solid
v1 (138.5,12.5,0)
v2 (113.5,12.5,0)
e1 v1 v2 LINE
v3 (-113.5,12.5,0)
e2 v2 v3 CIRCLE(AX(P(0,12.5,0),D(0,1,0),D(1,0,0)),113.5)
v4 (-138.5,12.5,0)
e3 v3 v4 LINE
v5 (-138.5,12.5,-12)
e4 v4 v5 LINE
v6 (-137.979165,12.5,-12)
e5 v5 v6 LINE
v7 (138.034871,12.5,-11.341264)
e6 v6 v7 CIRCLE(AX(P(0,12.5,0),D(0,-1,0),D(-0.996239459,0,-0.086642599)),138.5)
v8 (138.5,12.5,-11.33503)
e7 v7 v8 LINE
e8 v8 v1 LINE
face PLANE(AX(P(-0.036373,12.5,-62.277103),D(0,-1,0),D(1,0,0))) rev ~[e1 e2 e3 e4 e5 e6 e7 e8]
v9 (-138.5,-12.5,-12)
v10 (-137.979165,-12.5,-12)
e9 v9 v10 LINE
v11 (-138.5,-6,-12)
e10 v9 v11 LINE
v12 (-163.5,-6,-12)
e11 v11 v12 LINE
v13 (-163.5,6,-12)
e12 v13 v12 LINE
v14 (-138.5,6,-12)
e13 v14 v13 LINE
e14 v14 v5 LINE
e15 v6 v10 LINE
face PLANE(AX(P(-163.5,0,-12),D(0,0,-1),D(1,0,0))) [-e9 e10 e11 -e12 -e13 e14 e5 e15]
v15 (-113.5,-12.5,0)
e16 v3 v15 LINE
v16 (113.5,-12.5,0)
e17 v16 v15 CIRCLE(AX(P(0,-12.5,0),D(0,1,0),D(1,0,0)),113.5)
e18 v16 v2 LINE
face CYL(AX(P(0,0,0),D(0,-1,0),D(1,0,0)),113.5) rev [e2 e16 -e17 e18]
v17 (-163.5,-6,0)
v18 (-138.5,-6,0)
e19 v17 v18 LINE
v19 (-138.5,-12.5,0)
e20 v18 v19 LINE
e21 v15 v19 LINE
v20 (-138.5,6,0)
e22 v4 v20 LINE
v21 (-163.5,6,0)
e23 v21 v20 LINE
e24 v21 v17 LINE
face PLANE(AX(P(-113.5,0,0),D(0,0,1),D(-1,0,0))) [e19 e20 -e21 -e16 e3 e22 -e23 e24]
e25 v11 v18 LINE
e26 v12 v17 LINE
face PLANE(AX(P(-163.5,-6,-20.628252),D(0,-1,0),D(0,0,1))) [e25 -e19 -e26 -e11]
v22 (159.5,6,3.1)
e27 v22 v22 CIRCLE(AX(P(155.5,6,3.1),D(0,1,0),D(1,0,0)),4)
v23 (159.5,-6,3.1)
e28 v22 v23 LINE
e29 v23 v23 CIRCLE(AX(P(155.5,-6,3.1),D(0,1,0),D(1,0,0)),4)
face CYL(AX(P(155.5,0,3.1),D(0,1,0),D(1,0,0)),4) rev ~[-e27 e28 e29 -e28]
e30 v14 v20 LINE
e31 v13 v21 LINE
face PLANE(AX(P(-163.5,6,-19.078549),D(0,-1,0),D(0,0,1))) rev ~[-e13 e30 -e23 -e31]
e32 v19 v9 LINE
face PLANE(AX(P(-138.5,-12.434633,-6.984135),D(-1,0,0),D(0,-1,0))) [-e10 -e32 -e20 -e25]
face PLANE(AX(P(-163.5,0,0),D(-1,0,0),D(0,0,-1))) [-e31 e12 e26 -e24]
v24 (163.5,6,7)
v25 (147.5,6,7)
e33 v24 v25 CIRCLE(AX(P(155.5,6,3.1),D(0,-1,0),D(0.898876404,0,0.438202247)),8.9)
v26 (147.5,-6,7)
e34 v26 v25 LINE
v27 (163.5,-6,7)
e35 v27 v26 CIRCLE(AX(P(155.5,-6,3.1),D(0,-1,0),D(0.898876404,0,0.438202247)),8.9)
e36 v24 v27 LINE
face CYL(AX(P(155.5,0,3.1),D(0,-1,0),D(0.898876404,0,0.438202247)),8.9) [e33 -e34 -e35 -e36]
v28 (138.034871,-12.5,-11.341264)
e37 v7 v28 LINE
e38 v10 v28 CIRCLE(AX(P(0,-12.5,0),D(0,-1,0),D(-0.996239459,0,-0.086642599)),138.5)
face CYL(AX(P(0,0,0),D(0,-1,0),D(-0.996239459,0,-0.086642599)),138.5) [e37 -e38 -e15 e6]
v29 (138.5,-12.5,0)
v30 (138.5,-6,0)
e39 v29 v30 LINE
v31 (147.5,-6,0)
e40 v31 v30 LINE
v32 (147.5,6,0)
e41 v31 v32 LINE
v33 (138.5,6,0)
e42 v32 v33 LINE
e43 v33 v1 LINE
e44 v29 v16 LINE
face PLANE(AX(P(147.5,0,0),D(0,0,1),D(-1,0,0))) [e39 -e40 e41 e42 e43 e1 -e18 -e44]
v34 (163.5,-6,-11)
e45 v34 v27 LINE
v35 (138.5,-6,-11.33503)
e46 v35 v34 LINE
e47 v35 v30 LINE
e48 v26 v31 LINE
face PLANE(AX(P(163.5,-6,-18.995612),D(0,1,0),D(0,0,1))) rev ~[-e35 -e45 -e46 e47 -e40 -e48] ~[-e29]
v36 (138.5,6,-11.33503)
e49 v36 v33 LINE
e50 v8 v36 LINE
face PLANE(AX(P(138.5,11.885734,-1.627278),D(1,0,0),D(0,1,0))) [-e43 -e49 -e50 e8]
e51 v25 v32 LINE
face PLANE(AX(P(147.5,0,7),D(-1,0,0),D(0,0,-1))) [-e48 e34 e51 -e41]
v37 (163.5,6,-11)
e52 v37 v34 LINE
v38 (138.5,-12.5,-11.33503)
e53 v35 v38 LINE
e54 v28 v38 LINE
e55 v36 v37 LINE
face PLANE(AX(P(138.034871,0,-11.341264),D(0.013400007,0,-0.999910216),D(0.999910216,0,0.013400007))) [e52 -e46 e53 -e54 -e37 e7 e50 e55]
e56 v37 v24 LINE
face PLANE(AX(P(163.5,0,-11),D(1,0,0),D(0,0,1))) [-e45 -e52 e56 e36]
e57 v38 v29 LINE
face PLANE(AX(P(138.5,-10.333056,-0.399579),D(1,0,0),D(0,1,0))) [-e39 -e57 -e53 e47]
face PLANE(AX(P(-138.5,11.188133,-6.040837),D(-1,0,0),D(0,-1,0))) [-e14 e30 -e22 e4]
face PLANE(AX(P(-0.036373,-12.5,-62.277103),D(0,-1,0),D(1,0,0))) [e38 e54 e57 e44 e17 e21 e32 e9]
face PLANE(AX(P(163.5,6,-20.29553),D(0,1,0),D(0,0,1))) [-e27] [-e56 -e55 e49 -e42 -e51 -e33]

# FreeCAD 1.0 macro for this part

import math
import FreeCAD as App
import Part
import Sketcher

V = App.Vector

doc = App.newDocument("Part")
body = doc.addObject("PartDesign::Body", "Body")

# Sketch on XZ plane
sketch1 = body.newObject("Sketcher::SketchObject", "Sketch")
sketch1.AttachmentSupport = (doc.getObject("XZ_Plane"), [""])
sketch1.MapMode = "FlatFace"
sketch1.addGeometry([
    Part.ArcOfCircle(Part.Circle(V(0, 0, 0), V(0, 0, 1), 113.5), math.radians(180), math.radians(360)),  # 0
    Part.LineSegment(V(-113.5, 0, 0), V(-163.5, 0, 0)),  # 1
    Part.LineSegment(V(-163.5, 0, 0), V(-163.5, -12, 0)),  # 2
    Part.LineSegment(V(-163.5, -12, 0), V(-138, -12, 0)),  # 3
    Part.ArcOfCircle(Part.Circle(V(0, 0, 0), V(0, 0, 1), 138.5), math.radians(-175), math.radians(-5)),  # 4
    Part.LineSegment(V(138, -11.3, 0), V(163.5, -11, 0)),  # 5
    Part.LineSegment(V(163.5, -11, 0), V(163.5, 7, 0)),  # 6
    Part.ArcOfCircle(Part.Circle(V(155.5, 3.1, 0), V(0, 0, 1), 8.9), math.radians(26), math.radians(154)),  # 7
    Part.LineSegment(V(147.5, 7, 0), V(147.5, 0, 0)),  # 8
    Part.LineSegment(V(147.5, 0, 0), V(113.5, 0, 0)),  # 9
    Part.ArcOfCircle(Part.Circle(V(155.5, 3.1, 0), V(0, 0, 1), 4), math.radians(-129), math.radians(-51)),  # 10
    Part.ArcOfCircle(Part.Circle(V(155.5, 3.1, 0), V(0, 0, 1), 4), math.radians(0), math.radians(231)),  # 11
    Part.ArcOfCircle(Part.Circle(V(155.5, 3.1, 0), V(0, 0, 1), 4), math.radians(-51), math.radians(0)),  # 12
], False)
sketch1.addConstraint([
    Sketcher.Constraint("Coincident", 0, 1, 1, 1),
    Sketcher.Constraint("Coincident", 1, 2, 2, 1),
    Sketcher.Constraint("Coincident", 2, 2, 3, 1),
    Sketcher.Constraint("Coincident", 3, 2, 4, 1),
    Sketcher.Constraint("Coincident", 4, 2, 5, 1),
    Sketcher.Constraint("Coincident", 5, 2, 6, 1),
    Sketcher.Constraint("Coincident", 6, 2, 7, 1),
    Sketcher.Constraint("Coincident", 7, 2, 8, 1),
    Sketcher.Constraint("Coincident", 8, 2, 9, 1),
    Sketcher.Constraint("Coincident", 9, 2, 0, 2),
    Sketcher.Constraint("Tangent", 10, 1, 11, 2),
    Sketcher.Constraint("Tangent", 11, 1, 12, 2),
    Sketcher.Constraint("Tangent", 12, 1, 10, 2),
    Sketcher.Constraint("Horizontal", 1),
    Sketcher.Constraint("Vertical", 2),
    Sketcher.Constraint("Horizontal", 3),
    Sketcher.Constraint("Vertical", 6),
    Sketcher.Constraint("Vertical", 8),
    Sketcher.Constraint("Horizontal", 9),
    Sketcher.Constraint("Coincident", 0, 3, -1, 1),
    Sketcher.Constraint("Coincident", 4, 3, -1, 1),
    Sketcher.Constraint("Coincident", 10, 3, 7, 3),
    Sketcher.Constraint("PointOnObject", 0, 1, -1),
    Sketcher.Constraint("PointOnObject", 8, 2, -1),
    Sketcher.Constraint("PointOnObject", 10, 1, -1),
    Sketcher.Constraint("PointOnObject", 12, 1, -1),
    Sketcher.Constraint("Horizontal", 6, 2, 7, 2),
    Sketcher.Constraint("Horizontal", 12, 3, 11, 1),
    Sketcher.Constraint("Radius", 10, 4.0),
    Sketcher.Constraint("Radius", 0, 113.5),
    Sketcher.Constraint("Radius", 4, 138.5),
    Sketcher.Constraint("Radius", 7, 8.9),
    Sketcher.Constraint("DistanceX", 1, 2, 1, 1, 50.0),
    Sketcher.Constraint("DistanceX", 9, 2, 9, 1, 34.0),
    Sketcher.Constraint("DistanceY", 2, 2, 2, 1, 12.0),
    Sketcher.Constraint("DistanceY", 6, 1, 6, 2, 18.0),
    Sketcher.Constraint("DistanceY", 8, 2, 8, 1, 7.0),
    Sketcher.Constraint("DistanceX", 0, 1, 12, 3, 269.0),
    Sketcher.Constraint("DistanceX", -1, 1, 4, 2, 138.034871),
])
pad1 = body.newObject("PartDesign::Pad", "Pad")
pad1.Profile = sketch1
pad1.Length = 25
pad1.Midplane = True

# Sketch on YZ plane
sketch2 = body.newObject("Sketcher::SketchObject", "Sketch001")
sketch2.AttachmentSupport = (doc.getObject("YZ_Plane"), [""])
sketch2.MapMode = "FlatFace"
sketch2.AttachmentOffset = App.Placement(V(0, 0, 163.5), App.Rotation())
sketch2.addGeometry([
    Part.LineSegment(V(-15, 18, 0), V(-15, -19, 0)),  # 0
    Part.LineSegment(V(-15, -19, 0), V(-6, -19, 0)),  # 1
    Part.LineSegment(V(-6, -19, 0), V(-6, 18, 0)),  # 2
    Part.LineSegment(V(-6, 18, 0), V(-15, 18, 0)),  # 3
    Part.LineSegment(V(6, 17, 0), V(6, -20, 0)),  # 4
    Part.LineSegment(V(6, -20, 0), V(18, -20, 0)),  # 5
    Part.LineSegment(V(18, -20, 0), V(18, 17, 0)),  # 6
    Part.LineSegment(V(18, 17, 0), V(6, 17, 0)),  # 7
], False)
sketch2.addConstraint([
    Sketcher.Constraint("Coincident", 0, 2, 1, 1),
    Sketcher.Constraint("Coincident", 1, 2, 2, 1),
    Sketcher.Constraint("Coincident", 2, 2, 3, 1),
    Sketcher.Constraint("Coincident", 3, 2, 0, 1),
    Sketcher.Constraint("Coincident", 4, 2, 5, 1),
    Sketcher.Constraint("Coincident", 5, 2, 6, 1),
    Sketcher.Constraint("Coincident", 6, 2, 7, 1),
    Sketcher.Constraint("Coincident", 7, 2, 4, 1),
    Sketcher.Constraint("Vertical", 0),
    Sketcher.Constraint("Horizontal", 1),
    Sketcher.Constraint("Vertical", 2),
    Sketcher.Constraint("Horizontal", 3),
    Sketcher.Constraint("Vertical", 4),
    Sketcher.Constraint("Horizontal", 5),
    Sketcher.Constraint("Vertical", 6),
    Sketcher.Constraint("Horizontal", 7),
    Sketcher.Constraint("DistanceX", 1, 2, -1, 1, 6.0),
    Sketcher.Constraint("DistanceX", -1, 1, 4, 2, 6.0),
    Sketcher.Constraint("DistanceX", 1, 1, 1, 2, 8.666112),
    Sketcher.Constraint("DistanceX", 5, 1, 5, 2, 11.771468),
    Sketcher.Constraint("DistanceY", 0, 2, 0, 1, 37.192065),
    Sketcher.Constraint("DistanceY", 4, 2, 4, 1, 37.336503),
    Sketcher.Constraint("DistanceY", 0, 2, -1, 1, 18.995612),
    Sketcher.Constraint("DistanceY", 4, 2, -1, 1, 20.29553),
])
pocket1 = body.newObject("PartDesign::Pocket", "Pocket")
pocket1.Profile = sketch2
pocket1.Length = 25

# Sketch on YZ plane
sketch3 = body.newObject("Sketcher::SketchObject", "Sketch002")
sketch3.AttachmentSupport = (doc.getObject("YZ_Plane"), [""])
sketch3.MapMode = "FlatFace"
sketch3.AttachmentOffset = App.Placement(V(0, 0, -163.5), App.Rotation())
sketch3.addGeometry([
    Part.LineSegment(V(16, 7, 0), V(16, -19, 0)),  # 0
    Part.LineSegment(V(16, -19, 0), V(6, -19, 0)),  # 1
    Part.LineSegment(V(6, -19, 0), V(6, 7, 0)),  # 2
    Part.LineSegment(V(6, 7, 0), V(16, 7, 0)),  # 3
    Part.LineSegment(V(-6, 7, 0), V(-6, -21, 0)),  # 4
    Part.LineSegment(V(-6, -21, 0), V(-19, -21, 0)),  # 5
    Part.LineSegment(V(-19, -21, 0), V(-19, 7, 0)),  # 6
    Part.LineSegment(V(-19, 7, 0), V(-6, 7, 0)),  # 7
], False)
sketch3.addConstraint([
    Sketcher.Constraint("Coincident", 0, 2, 1, 1),
    Sketcher.Constraint("Coincident", 1, 2, 2, 1),
    Sketcher.Constraint("Coincident", 2, 2, 3, 1),
    Sketcher.Constraint("Coincident", 3, 2, 0, 1),
    Sketcher.Constraint("Coincident", 4, 2, 5, 1),
    Sketcher.Constraint("Coincident", 5, 2, 6, 1),
    Sketcher.Constraint("Coincident", 6, 2, 7, 1),
    Sketcher.Constraint("Coincident", 7, 2, 4, 1),
    Sketcher.Constraint("Vertical", 0),
    Sketcher.Constraint("Horizontal", 1),
    Sketcher.Constraint("Vertical", 2),
    Sketcher.Constraint("Horizontal", 3),
    Sketcher.Constraint("Vertical", 4),
    Sketcher.Constraint("Horizontal", 5),
    Sketcher.Constraint("Vertical", 6),
    Sketcher.Constraint("Horizontal", 7),
    Sketcher.Constraint("DistanceX", -1, 1, 1, 2, 6.0),
    Sketcher.Constraint("DistanceX", 4, 2, -1, 1, 6.0),
    Sketcher.Constraint("DistanceX", 1, 2, 1, 1, 10.376267),
    Sketcher.Constraint("DistanceX", 5, 2, 5, 1, 12.869266),
    Sketcher.Constraint("DistanceY", 0, 2, 0, 1, 26.075424),
    Sketcher.Constraint("DistanceY", 4, 2, 4, 1, 27.288235),
    Sketcher.Constraint("DistanceY", 0, 2, -1, 1, 19.078549),
    Sketcher.Constraint("DistanceY", 1, 2, 6, 2, 25.738531),
])
pocket2 = body.newObject("PartDesign::Pocket", "Pocket001")
pocket2.Profile = sketch3
pocket2.Length = 25
pocket2.Reversed = True

doc.recompute()
